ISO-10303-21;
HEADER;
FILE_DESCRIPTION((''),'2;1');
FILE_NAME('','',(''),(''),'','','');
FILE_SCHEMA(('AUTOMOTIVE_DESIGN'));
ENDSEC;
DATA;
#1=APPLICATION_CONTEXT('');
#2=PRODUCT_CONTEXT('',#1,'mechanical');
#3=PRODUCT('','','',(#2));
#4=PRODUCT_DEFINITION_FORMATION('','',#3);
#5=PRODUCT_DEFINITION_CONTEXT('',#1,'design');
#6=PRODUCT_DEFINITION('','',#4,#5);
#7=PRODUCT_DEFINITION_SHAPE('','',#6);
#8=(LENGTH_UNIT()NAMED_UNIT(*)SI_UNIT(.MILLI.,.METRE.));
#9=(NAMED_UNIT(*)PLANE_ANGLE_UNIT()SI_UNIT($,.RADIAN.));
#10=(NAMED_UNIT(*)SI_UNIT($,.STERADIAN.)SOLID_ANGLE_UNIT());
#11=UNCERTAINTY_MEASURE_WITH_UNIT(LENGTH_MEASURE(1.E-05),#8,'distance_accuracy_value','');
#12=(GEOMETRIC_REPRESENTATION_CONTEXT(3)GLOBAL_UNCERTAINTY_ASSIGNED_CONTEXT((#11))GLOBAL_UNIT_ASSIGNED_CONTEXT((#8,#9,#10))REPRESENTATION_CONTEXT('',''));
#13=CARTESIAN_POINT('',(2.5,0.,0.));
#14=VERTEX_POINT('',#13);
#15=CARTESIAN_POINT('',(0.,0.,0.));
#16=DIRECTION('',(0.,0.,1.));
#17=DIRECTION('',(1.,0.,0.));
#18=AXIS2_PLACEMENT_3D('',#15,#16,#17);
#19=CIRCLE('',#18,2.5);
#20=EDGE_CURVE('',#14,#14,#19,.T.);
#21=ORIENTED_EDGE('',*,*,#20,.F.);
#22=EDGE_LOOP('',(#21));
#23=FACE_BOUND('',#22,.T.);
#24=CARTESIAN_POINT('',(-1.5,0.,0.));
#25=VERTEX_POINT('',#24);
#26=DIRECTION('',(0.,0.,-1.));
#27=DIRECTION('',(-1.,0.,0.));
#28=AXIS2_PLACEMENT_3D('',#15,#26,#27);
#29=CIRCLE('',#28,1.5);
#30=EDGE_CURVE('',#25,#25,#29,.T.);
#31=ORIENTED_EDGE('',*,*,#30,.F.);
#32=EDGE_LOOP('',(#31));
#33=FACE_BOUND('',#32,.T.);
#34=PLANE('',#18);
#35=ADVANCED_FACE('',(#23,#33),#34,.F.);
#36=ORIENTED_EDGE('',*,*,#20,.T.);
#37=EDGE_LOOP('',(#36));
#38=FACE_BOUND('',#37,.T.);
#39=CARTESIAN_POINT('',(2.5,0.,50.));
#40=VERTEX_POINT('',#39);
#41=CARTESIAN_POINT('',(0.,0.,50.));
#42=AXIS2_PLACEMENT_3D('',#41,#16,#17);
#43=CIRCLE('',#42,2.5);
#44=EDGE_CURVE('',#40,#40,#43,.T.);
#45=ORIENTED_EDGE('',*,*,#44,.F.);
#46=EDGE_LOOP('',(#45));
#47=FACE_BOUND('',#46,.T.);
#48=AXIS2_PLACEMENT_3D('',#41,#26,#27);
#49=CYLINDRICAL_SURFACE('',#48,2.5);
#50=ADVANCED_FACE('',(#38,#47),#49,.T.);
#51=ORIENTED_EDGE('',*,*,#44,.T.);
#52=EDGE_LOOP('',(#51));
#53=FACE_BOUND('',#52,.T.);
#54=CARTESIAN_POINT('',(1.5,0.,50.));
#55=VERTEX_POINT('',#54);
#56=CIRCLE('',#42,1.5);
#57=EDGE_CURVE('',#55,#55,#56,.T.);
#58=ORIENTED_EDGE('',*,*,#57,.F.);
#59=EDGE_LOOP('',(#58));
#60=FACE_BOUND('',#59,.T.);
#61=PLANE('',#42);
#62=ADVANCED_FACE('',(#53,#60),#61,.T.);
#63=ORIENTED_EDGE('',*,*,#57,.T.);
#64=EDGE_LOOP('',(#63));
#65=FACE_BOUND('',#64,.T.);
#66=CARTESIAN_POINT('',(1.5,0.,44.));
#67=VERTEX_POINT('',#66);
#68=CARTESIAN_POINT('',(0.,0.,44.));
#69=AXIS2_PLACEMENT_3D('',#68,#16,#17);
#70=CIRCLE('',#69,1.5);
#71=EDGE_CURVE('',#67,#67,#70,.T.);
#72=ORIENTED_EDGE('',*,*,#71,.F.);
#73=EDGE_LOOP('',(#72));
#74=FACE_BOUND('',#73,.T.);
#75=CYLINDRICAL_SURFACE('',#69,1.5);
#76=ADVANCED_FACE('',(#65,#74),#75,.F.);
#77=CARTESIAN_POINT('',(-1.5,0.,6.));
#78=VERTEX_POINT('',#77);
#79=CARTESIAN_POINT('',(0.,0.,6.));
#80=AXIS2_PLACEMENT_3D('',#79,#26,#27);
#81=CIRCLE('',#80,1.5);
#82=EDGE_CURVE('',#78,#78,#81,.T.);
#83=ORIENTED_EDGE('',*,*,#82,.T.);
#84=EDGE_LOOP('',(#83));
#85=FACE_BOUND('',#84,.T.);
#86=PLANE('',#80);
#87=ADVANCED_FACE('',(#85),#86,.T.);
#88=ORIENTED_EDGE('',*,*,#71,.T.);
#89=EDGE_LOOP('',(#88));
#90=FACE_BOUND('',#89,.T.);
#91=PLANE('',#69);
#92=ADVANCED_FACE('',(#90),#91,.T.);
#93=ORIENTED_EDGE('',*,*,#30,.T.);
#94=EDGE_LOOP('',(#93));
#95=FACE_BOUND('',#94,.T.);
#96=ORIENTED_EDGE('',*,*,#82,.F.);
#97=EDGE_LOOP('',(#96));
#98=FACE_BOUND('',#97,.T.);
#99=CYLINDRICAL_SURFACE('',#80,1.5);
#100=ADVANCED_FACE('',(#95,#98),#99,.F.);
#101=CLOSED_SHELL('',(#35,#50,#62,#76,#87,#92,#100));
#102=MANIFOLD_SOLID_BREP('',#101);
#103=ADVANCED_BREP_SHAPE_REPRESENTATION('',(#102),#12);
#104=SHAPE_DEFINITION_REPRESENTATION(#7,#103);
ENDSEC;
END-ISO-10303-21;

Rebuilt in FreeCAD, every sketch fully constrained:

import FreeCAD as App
import Part
import Sketcher
from FreeCAD import Vector

doc = App.newDocument("Part")
params = doc.addObject("Spreadsheet::Sheet", "Params")
for row, (alias, value) in enumerate([
    ("sketch1_diameter", "5 mm"),
    ("pad1_length", "50 mm"),
    ("sketch2_diameter", "3 mm"),
    ("pocket1_length", "6 mm"),
    ("sketch3_diameter", "3 mm"),
    ("pocket2_length", "6 mm"),
], start=1):
    params.set(f"A{row}", alias)
    params.set(f"B{row}", "=" + value)
    params.setAlias(f"B{row}", alias)

body = doc.addObject("PartDesign::Body", "Body")

# Sketch on XY plane
sketch1 = body.newObject("Sketcher::SketchObject", "Sketch")
sketch1.AttachmentSupport = (doc.getObject("XY_Plane"), [""])
sketch1.MapMode = "FlatFace"
sketch1.addGeometry(Part.Circle(Vector(0, 0, 0), Vector(0, 0, 1), 2.5), False)
sketch1.addConstraint([
    Sketcher.Constraint("Coincident", 0, 3, -1, 1),
    Sketcher.Constraint("Diameter", 0, 5.0),
])
sketch1.setExpression("Constraints[1]", "Params.sketch1_diameter")
pad1 = body.newObject("PartDesign::Pad", "Pad")
pad1.Profile = sketch1
pad1.setExpression("Length", "Params.pad1_length")

# Sketch on XY plane
sketch2 = body.newObject("Sketcher::SketchObject", "Sketch001")
sketch2.AttachmentSupport = (doc.getObject("XY_Plane"), [""])
sketch2.MapMode = "FlatFace"
sketch2.AttachmentOffset = App.Placement(Vector(0, 0, 50), App.Rotation())
sketch2.addGeometry(Part.Circle(Vector(0, 0, 0), Vector(0, 0, 1), 1.5), False)
sketch2.addConstraint([
    Sketcher.Constraint("Coincident", 0, 3, -1, 1),
    Sketcher.Constraint("Diameter", 0, 3.0),
])
sketch2.setExpression("Constraints[1]", "Params.sketch2_diameter")
pocket1 = body.newObject("PartDesign::Pocket", "Pocket")
pocket1.Profile = sketch2
pocket1.setExpression("Length", "Params.pocket1_length")

# Sketch on XY plane
sketch3 = body.newObject("Sketcher::SketchObject", "Sketch002")
sketch3.AttachmentSupport = (doc.getObject("XY_Plane"), [""])
sketch3.MapMode = "FlatFace"
sketch3.AttachmentOffset = App.Placement(Vector(0, 0, 6), App.Rotation())
sketch3.addGeometry(Part.Circle(Vector(0, 0, 0), Vector(0, 0, 1), 1.5), False)
sketch3.addConstraint([
    Sketcher.Constraint("Coincident", 0, 3, -1, 1),
    Sketcher.Constraint("Diameter", 0, 3.0),
])
sketch3.setExpression("Constraints[1]", "Params.sketch3_diameter")
pocket2 = body.newObject("PartDesign::Pocket", "Pocket001")
pocket2.Profile = sketch3
pocket2.setExpression("Length", "Params.pocket2_length")

doc.recompute()
